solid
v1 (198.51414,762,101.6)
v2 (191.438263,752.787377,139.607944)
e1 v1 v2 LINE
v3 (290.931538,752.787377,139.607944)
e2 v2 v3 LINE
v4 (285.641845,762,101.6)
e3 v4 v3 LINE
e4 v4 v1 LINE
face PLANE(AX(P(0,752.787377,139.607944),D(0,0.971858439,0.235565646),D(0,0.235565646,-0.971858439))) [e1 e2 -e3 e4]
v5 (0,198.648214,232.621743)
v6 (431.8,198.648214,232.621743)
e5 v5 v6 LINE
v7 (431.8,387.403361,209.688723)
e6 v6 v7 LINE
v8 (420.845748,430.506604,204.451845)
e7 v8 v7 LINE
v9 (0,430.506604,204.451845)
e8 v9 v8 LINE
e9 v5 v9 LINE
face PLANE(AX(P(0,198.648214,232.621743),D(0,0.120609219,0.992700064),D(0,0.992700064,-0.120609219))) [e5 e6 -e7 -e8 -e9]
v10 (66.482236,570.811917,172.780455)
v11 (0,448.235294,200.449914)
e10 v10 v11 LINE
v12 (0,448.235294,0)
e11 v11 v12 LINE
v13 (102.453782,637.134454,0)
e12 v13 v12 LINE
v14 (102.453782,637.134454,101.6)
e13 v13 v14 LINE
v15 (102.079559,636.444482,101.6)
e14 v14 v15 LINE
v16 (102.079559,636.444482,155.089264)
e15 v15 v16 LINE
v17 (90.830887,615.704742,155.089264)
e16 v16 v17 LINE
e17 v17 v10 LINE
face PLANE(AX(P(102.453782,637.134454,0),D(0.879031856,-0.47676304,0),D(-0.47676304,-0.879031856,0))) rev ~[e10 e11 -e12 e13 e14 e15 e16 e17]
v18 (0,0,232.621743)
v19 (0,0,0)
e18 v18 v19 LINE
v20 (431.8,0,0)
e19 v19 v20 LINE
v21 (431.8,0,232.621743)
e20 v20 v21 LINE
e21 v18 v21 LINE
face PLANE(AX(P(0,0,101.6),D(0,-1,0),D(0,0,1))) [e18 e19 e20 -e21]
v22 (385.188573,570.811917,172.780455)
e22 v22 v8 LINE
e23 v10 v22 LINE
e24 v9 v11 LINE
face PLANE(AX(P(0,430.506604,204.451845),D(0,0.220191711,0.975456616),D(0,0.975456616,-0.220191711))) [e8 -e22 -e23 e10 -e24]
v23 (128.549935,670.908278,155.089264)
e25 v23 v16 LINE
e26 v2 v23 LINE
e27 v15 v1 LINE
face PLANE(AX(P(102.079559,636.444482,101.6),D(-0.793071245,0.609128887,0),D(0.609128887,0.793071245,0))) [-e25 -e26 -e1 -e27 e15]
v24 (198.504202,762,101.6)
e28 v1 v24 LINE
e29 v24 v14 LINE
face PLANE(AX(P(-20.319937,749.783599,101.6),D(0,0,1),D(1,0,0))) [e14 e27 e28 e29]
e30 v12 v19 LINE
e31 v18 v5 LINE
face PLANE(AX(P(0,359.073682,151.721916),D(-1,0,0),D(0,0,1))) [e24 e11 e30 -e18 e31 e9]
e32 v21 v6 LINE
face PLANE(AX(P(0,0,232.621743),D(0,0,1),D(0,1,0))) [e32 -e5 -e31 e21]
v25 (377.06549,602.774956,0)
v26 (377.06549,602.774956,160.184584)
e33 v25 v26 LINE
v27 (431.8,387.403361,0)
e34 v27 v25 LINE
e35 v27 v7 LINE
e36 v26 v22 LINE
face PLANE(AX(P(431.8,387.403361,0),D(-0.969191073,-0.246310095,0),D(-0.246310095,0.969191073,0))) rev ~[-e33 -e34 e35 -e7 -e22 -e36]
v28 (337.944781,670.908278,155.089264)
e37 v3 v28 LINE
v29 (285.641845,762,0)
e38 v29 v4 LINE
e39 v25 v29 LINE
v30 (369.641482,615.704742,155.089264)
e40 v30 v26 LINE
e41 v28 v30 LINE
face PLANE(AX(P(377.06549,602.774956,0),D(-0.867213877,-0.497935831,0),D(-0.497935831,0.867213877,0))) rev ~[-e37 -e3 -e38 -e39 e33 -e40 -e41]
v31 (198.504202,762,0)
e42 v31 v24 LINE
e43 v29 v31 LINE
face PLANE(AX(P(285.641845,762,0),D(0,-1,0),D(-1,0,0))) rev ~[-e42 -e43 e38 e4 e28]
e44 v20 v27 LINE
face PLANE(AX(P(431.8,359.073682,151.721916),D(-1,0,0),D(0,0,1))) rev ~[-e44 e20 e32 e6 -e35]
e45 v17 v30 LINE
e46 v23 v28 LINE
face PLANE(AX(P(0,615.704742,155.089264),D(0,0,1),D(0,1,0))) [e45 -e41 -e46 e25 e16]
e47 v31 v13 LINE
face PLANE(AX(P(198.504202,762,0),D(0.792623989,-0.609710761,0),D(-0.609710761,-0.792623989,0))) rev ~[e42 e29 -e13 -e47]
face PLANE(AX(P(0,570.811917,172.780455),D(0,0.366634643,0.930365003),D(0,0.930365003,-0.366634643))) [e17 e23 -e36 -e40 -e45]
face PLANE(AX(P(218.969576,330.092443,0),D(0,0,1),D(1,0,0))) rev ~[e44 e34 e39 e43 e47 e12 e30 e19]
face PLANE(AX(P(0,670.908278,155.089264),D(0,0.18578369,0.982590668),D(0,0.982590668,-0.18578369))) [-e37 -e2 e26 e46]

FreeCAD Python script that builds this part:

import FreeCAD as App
import Part
import Sketcher
Q = App.Units.Quantity

doc = App.newDocument("Part")
params = doc.addObject("Spreadsheet::Sheet", "Params")
for row, (alias, value) in enumerate([
    ("sketch1_width", "17 in"),
    ("pad1_length", "4 in"),
    ("sketch2_width", "30 in"),
    ("pad2_length", "17 in"),
], start=1):
    params.set(f"A{row}", alias)
    params.set(f"B{row}", "=" + value)
    params.setAlias(f"B{row}", alias)

body = doc.addObject("PartDesign::Body", "Body")

# Sketch on XY plane
sketch1 = doc.addObject("Sketcher::SketchObject", "Sketch")
body.addObject(sketch1)
sketch1.AttachmentSupport = (doc.XY_Plane, [""])
sketch1.MapMode = "FlatFace"
sketch1.addGeometry([
    Part.LineSegment(App.Vector(0, 0, 0), App.Vector(432, 0, 0)),  # 0
    Part.LineSegment(App.Vector(432, 0, 0), App.Vector(432, 387, 0)),  # 1
    Part.LineSegment(App.Vector(432, 387, 0), App.Vector(377, 603, 0)),  # 2
    Part.LineSegment(App.Vector(377, 603, 0), App.Vector(286, 762, 0)),  # 3
    Part.LineSegment(App.Vector(286, 762, 0), App.Vector(199, 762, 0)),  # 4
    Part.LineSegment(App.Vector(199, 762, 0), App.Vector(102, 637, 0)),  # 5
    Part.LineSegment(App.Vector(102, 637, 0), App.Vector(0, 448, 0)),  # 6
    Part.LineSegment(App.Vector(0, 448, 0), App.Vector(0, 0, 0)),  # 7
], False)
sketch1.addConstraint([
    Sketcher.Constraint("Coincident", 0, 2, 1, 1),
    Sketcher.Constraint("Coincident", 1, 2, 2, 1),
    Sketcher.Constraint("Coincident", 2, 2, 3, 1),
    Sketcher.Constraint("Coincident", 3, 2, 4, 1),
    Sketcher.Constraint("Coincident", 4, 2, 5, 1),
    Sketcher.Constraint("Coincident", 5, 2, 6, 1),
    Sketcher.Constraint("Coincident", 6, 2, 7, 1),
    Sketcher.Constraint("Coincident", 7, 2, 0, 1),
    Sketcher.Constraint("Horizontal", 0),
    Sketcher.Constraint("Vertical", 1),
    Sketcher.Constraint("Horizontal", 4),
    Sketcher.Constraint("Vertical", 7),
    Sketcher.Constraint("Coincident", 7, 2, -1, 1),
    Sketcher.Constraint("DistanceX", 0, 1, 0, 2, Q("17 in")),
    Sketcher.Constraint("DistanceY", -1, 1, 3, 2, Q("30 in")),
    Sketcher.Constraint("DistanceY", 1, 1, 1, 2, 387.403361),
    Sketcher.Constraint("DistanceX", -1, 1, 4, 2, 198.504202),
    Sketcher.Constraint("Distance", 2, 222.21789),
    Sketcher.Constraint("DistanceX", 4, 2, 4, 1, 87.137643),
    Sketcher.Constraint("DistanceY", 7, 2, 7, 1, 448.235294),
    Sketcher.Constraint("DistanceX", -1, 1, 2, 2, 377.06549),
    Sketcher.Constraint("DistanceX", -1, 1, 5, 2, 102.453782),
    Sketcher.Constraint("DistanceY", 6, 2, 5, 2, 188.89916),
])
sketch1.setExpression("Constraints[13]", "Params.sketch1_width")
pad1 = doc.addObject("PartDesign::Pad", "Pad")
body.addObject(pad1)
pad1.Profile = sketch1
pad1.setExpression("Length", "Params.pad1_length")

# Sketch on YZ plane
sketch2 = doc.addObject("Sketcher::SketchObject", "Sketch001")
body.addObject(sketch2)
sketch2.AttachmentSupport = (doc.YZ_Plane, [""])
sketch2.MapMode = "FlatFace"
sketch2.addGeometry([
    Part.LineSegment(App.Vector(0, 102, 0), App.Vector(0, 233, 0)),  # 0
    Part.LineSegment(App.Vector(0, 233, 0), App.Vector(199, 233, 0)),  # 1
    Part.LineSegment(App.Vector(199, 233, 0), App.Vector(431, 204, 0)),  # 2
    Part.LineSegment(App.Vector(431, 204, 0), App.Vector(571, 173, 0)),  # 3
    Part.LineSegment(App.Vector(571, 173, 0), App.Vector(616, 155, 0)),  # 4
    Part.LineSegment(App.Vector(616, 155, 0), App.Vector(671, 155, 0)),  # 5
    Part.LineSegment(App.Vector(671, 155, 0), App.Vector(753, 140, 0)),  # 6
    Part.LineSegment(App.Vector(753, 140, 0), App.Vector(762, 102, 0)),  # 7
    Part.LineSegment(App.Vector(762, 102, 0), App.Vector(0, 102, 0)),  # 8
], False)
sketch2.addConstraint([
    Sketcher.Constraint("Coincident", 0, 2, 1, 1),
    Sketcher.Constraint("Coincident", 1, 2, 2, 1),
    Sketcher.Constraint("Coincident", 2, 2, 3, 1),
    Sketcher.Constraint("Coincident", 3, 2, 4, 1),
    Sketcher.Constraint("Coincident", 4, 2, 5, 1),
    Sketcher.Constraint("Coincident", 5, 2, 6, 1),
    Sketcher.Constraint("Coincident", 6, 2, 7, 1),
    Sketcher.Constraint("Coincident", 7, 2, 8, 1),
    Sketcher.Constraint("Coincident", 8, 2, 0, 1),
    Sketcher.Constraint("Vertical", 0),
    Sketcher.Constraint("Horizontal", 1),
    Sketcher.Constraint("Horizontal", 5),
    Sketcher.Constraint("Horizontal", 8),
    Sketcher.Constraint("PointOnObject", 0, 2, -2),
    Sketcher.Constraint("DistanceX", 8, 2, 8, 1, Q("30 in")),
    Sketcher.Constraint("DistanceY", -1, 1, 7, 2, Q("4 in")),
    Sketcher.Constraint("DistanceX", 5, 2, 6, 2, 81.879098),
    Sketcher.Constraint("DistanceY", 6, 2, 2, 2, 64.843901),
    Sketcher.Constraint("DistanceY", 6, 2, 1, 2, 93.013799),
    Sketcher.Constraint("Distance", 7, 39.108519),
    Sketcher.Constraint("DistanceX", 1, 1, 1, 2, 198.648214),
    Sketcher.Constraint("DistanceX", 5, 1, 5, 2, 55.203537),
    Sketcher.Constraint("DistanceY", 0, 1, 0, 2, 131.021743),
    Sketcher.Constraint("DistanceX", 1, 2, 2, 2, 231.85839),
    Sketcher.Constraint("DistanceY", 3, 2, 2, 2, 31.67139),
    Sketcher.Constraint("DistanceY", 4, 2, 3, 2, 17.691191),
    Sketcher.Constraint("DistanceX", 3, 2, 5, 2, 100.096362),
])
sketch2.setExpression("Constraints[14]", "Params.sketch2_width")
pad2 = doc.addObject("PartDesign::Pad", "Pad001")
body.addObject(pad2)
pad2.Profile = sketch2
pad2.setExpression("Length", "Params.pad2_length")

# Sketch on XY plane
sketch3 = doc.addObject("Sketcher::SketchObject", "Sketch002")
body.addObject(sketch3)
sketch3.AttachmentSupport = (doc.XY_Plane, [""])
sketch3.MapMode = "FlatFace"
sketch3.AttachmentOffset = App.Placement(App.Vector(0, 0, 4 * 25.4), App.Rotation())
sketch3.addGeometry([
    Part.LineSegment(App.Vector(102.079559, 636.444482, 0), App.Vector(0, 448.235294, 0)),  # 0
    Part.LineSegment(App.Vector(0, 448.235294, 0), App.Vector(-179.71587, 482.849418, 0)),  # 1
    Part.LineSegment(App.Vector(-179.71587, 482.849418, 0), App.Vector(-227.879484, 941.921734, 0)),  # 2
    Part.LineSegment(App.Vector(-227.879484, 941.921734, 0), App.Vector(205.052343, 987.342816, 0)),  # 3
    Part.LineSegment(App.Vector(205.052343, 987.342816, 0), App.Vector(205.052343, 770.512584, 0)),  # 4
    Part.LineSegment(App.Vector(205.052343, 770.512584, 0), App.Vector(102.079559, 636.444482, 0)),  # 5
], False)
sketch3.addConstraint([
    Sketcher.Constraint("Coincident", 0, 2, 1, 1),
    Sketcher.Constraint("Coincident", 1, 2, 2, 1),
    Sketcher.Constraint("Coincident", 2, 2, 3, 1),
    Sketcher.Constraint("Coincident", 3, 2, 4, 1),
    Sketcher.Constraint("Coincident", 4, 2, 5, 1),
    Sketcher.Constraint("Coincident", 5, 2, 0, 1),
    Sketcher.Constraint("Vertical", 4),
    Sketcher.Constraint("PointOnObject", 0, 2, -2),
    Sketcher.Constraint("DistanceY", 1, 2, 3, 2, 504.493398),
    Sketcher.Constraint("Distance", 1, 183.018938),
    Sketcher.Constraint("DistanceY", 4, 2, 4, 1, 216.830233),
    Sketcher.Constraint("DistanceX", 1, 2, -1, 1, 179.71587),
    Sketcher.Constraint("DistanceY", -1, 1, 1, 2, 482.849418),
    Sketcher.Constraint("DistanceX", -1, 1, 5, 2, 102.079559),
    Sketcher.Constraint("DistanceY", -1, 1, 5, 2, 636.444482),
    Sketcher.Constraint("DistanceY", 0, 2, 2, 2, 493.68644),
    Sketcher.Constraint("Distance", 2, 461.591946),
    Sketcher.Constraint("Distance", 3, 435.307985),
])
pocket1 = doc.addObject("PartDesign::Pocket", "Pocket")
body.addObject(pocket1)
pocket1.Profile = sketch3
pocket1.Type = "ThroughAll"
pocket1.Reversed = True

# Sketch on XY plane
sketch4 = doc.addObject("Sketcher::SketchObject", "Sketch003")
body.addObject(sketch4)
sketch4.AttachmentSupport = (doc.XY_Plane, [""])
sketch4.MapMode = "FlatFace"
sketch4.AttachmentOffset = App.Placement(App.Vector(0, 0, 4 * 25.4), App.Rotation())
sketch4.addGeometry([
    Part.LineSegment(App.Vector(432, 387, 0), App.Vector(377, 603, 0)),  # 0
    Part.LineSegment(App.Vector(377, 603, 0), App.Vector(286, 762, 0)),  # 1
    Part.LineSegment(App.Vector(286, 762, 0), App.Vector(387, 962, 0)),  # 2
    Part.LineSegment(App.Vector(387, 962, 0), App.Vector(935, 962, 0)),  # 3
    Part.LineSegment(App.Vector(935, 962, 0), App.Vector(885, 473, 0)),  # 4
    Part.LineSegment(App.Vector(885, 473, 0), App.Vector(432, 387, 0)),  # 5
], False)
sketch4.addConstraint([
    Sketcher.Constraint("Coincident", 0, 2, 1, 1),
    Sketcher.Constraint("Coincident", 1, 2, 2, 1),
    Sketcher.Constraint("Coincident", 2, 2, 3, 1),
    Sketcher.Constraint("Coincident", 3, 2, 4, 1),
    Sketcher.Constraint("Coincident", 4, 2, 5, 1),
    Sketcher.Constraint("Coincident", 5, 2, 0, 1),
    Sketcher.Constraint("Horizontal", 3),
    Sketcher.Constraint("DistanceY", -1, 1, 1, 2, Q("30 in")),
    Sketcher.Constraint("DistanceX", -1, 1, 5, 2, Q("17 in")),
    Sketcher.Constraint("DistanceX", 3, 1, 3, 2, 548.4432),
    Sketcher.Constraint("Distance", 0, 222.21789),
    Sketcher.Constraint("Distance", 5, 461.118528),
    Sketcher.Constraint("DistanceX", -1, 1, 0, 2, 377.06549),
    Sketcher.Constraint("DistanceX", -1, 1, 2, 2, 386.64778),
    Sketcher.Constraint("DistanceY", -1, 1, 2, 2, 961.526141),
    Sketcher.Constraint("DistanceY", -1, 1, 4, 2, 472.949119),
    Sketcher.Constraint("DistanceY", -1, 1, 5, 2, 387.403361),
    Sketcher.Constraint("DistanceX", 1, 2, 4, 2, 599.272071),
])
pocket2 = doc.addObject("PartDesign::Pocket", "Pocket001")
body.addObject(pocket2)
pocket2.Profile = sketch4
pocket2.Type = "ThroughAll"
pocket2.Reversed = True

doc.recompute()
